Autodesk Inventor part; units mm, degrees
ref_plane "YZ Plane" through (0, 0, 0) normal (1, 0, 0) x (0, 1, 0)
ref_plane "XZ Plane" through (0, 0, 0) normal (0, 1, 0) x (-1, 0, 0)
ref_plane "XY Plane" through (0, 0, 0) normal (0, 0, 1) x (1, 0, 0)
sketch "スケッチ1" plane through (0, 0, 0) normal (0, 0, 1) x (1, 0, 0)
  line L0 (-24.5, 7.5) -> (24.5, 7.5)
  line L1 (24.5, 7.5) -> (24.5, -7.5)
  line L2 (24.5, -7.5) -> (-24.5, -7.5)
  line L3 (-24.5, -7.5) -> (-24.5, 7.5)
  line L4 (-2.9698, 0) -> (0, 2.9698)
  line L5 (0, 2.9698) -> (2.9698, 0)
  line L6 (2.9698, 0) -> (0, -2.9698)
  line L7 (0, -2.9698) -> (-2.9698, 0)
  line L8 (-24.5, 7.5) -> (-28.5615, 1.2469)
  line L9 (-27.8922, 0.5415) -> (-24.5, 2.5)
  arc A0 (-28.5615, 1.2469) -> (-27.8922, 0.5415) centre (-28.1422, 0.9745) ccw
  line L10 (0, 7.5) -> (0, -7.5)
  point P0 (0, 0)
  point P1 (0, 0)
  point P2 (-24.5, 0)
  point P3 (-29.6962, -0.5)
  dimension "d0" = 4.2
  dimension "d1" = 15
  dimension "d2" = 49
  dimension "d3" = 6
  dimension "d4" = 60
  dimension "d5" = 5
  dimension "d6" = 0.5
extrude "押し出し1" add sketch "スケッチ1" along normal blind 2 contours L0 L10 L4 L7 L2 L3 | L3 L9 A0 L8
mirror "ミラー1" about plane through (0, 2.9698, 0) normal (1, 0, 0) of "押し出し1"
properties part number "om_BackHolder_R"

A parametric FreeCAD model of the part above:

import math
import FreeCAD as App
import Part
import Sketcher
from FreeCAD import Vector
Q = App.Units.Quantity

doc = App.newDocument("Part")
body = doc.addObject("PartDesign::Body", "Body")

sketch1 = body.newObject("Sketcher::SketchObject", "Sketch")
sketch1.AttachmentSupport = (doc.getObject("XY_Plane"), [""])
sketch1.MapMode = "FlatFace"
sketch1.addGeometry([
    Part.LineSegment(Vector(0, 7.5, 0), Vector(-24.5, 7.5, 0)),
    Part.LineSegment(Vector(-24.5, 7.5, 0), Vector(-28.5615, 1.2469, 0)),
    Part.ArcOfCircle(Part.Circle(Vector(-28.1422, 0.9745, 0), Vector(0, 0, 1), 0.500014), math.radians(146.990063), math.radians(300.000728)),
    Part.LineSegment(Vector(-27.8922, 0.5415, 0), Vector(-24.5, 2.5, 0)),
    Part.LineSegment(Vector(-24.5, 2.5, 0), Vector(-24.5, -7.5, 0)),
    Part.LineSegment(Vector(-24.5, -7.5, 0), Vector(0, -7.5, 0)),
    Part.LineSegment(Vector(0, -7.5, 0), Vector(0, -2.9698, 0)),
    Part.LineSegment(Vector(0, -2.9698, 0), Vector(-2.9698, 0, 0)),
    Part.LineSegment(Vector(-2.9698, 0, 0), Vector(0, 2.9698, 0)),
    Part.LineSegment(Vector(0, 2.9698, 0), Vector(0, 7.5, 0)),
], False)
sketch1.addConstraint([
    Sketcher.Constraint("Coincident", 0, 2, 1, 1),
    Sketcher.Constraint("Tangent", 1, 2, 2, 1),
    Sketcher.Constraint("Tangent", 2, 2, 3, 1),
    Sketcher.Constraint("Coincident", 3, 2, 4, 1),
    Sketcher.Constraint("Coincident", 4, 2, 5, 1),
    Sketcher.Constraint("Coincident", 5, 2, 6, 1),
    Sketcher.Constraint("Coincident", 6, 2, 7, 1),
    Sketcher.Constraint("Coincident", 7, 2, 8, 1),
    Sketcher.Constraint("Coincident", 8, 2, 9, 1),
    Sketcher.Constraint("Coincident", 9, 2, 0, 1),
    Sketcher.Constraint("Horizontal", 0),
    Sketcher.Constraint("Vertical", 4),
    Sketcher.Constraint("Horizontal", 5),
    Sketcher.Constraint("Vertical", 6),
    Sketcher.Constraint("Vertical", 9),
    Sketcher.Constraint("Symmetric", 6, 2, 8, 2, -1, 1),
    Sketcher.Constraint("Symmetric", 0, 2, 4, 2, -1),
    Sketcher.Constraint("PointOnObject", 5, 2, -2),
    Sketcher.Constraint("PointOnObject", 7, 2, -1),
    Sketcher.Constraint("Perpendicular", 7, 8),
    Sketcher.Constraint("Radius", 2, 0.5),
    Sketcher.Constraint("DistanceY", 3, 2, 0, 2, 5.0),
    Sketcher.Constraint("DistanceY", 4, 2, 0, 2, 15.0),
    Sketcher.Constraint("Distance", 7, 4.2),
    Sketcher.Constraint("Angle", 3, Q("30.0002 deg")),
    Sketcher.Constraint("DistanceX", 0, 2, 0, 1, 24.5),
    Sketcher.Constraint("Distance", 3, 3.917),
])
pad1 = body.newObject("PartDesign::Pad", "Pad")
pad1.Profile = sketch1
pad1.Length = 2
doc.recompute()

mirrored = body.newObject("PartDesign::Mirrored", "Mirrored")
mirrored.Originals = [pad1]
mirrored.MirrorPlane = (doc.getObject("YZ_Plane"), [""])
body.Tip = mirrored

doc.recompute()
